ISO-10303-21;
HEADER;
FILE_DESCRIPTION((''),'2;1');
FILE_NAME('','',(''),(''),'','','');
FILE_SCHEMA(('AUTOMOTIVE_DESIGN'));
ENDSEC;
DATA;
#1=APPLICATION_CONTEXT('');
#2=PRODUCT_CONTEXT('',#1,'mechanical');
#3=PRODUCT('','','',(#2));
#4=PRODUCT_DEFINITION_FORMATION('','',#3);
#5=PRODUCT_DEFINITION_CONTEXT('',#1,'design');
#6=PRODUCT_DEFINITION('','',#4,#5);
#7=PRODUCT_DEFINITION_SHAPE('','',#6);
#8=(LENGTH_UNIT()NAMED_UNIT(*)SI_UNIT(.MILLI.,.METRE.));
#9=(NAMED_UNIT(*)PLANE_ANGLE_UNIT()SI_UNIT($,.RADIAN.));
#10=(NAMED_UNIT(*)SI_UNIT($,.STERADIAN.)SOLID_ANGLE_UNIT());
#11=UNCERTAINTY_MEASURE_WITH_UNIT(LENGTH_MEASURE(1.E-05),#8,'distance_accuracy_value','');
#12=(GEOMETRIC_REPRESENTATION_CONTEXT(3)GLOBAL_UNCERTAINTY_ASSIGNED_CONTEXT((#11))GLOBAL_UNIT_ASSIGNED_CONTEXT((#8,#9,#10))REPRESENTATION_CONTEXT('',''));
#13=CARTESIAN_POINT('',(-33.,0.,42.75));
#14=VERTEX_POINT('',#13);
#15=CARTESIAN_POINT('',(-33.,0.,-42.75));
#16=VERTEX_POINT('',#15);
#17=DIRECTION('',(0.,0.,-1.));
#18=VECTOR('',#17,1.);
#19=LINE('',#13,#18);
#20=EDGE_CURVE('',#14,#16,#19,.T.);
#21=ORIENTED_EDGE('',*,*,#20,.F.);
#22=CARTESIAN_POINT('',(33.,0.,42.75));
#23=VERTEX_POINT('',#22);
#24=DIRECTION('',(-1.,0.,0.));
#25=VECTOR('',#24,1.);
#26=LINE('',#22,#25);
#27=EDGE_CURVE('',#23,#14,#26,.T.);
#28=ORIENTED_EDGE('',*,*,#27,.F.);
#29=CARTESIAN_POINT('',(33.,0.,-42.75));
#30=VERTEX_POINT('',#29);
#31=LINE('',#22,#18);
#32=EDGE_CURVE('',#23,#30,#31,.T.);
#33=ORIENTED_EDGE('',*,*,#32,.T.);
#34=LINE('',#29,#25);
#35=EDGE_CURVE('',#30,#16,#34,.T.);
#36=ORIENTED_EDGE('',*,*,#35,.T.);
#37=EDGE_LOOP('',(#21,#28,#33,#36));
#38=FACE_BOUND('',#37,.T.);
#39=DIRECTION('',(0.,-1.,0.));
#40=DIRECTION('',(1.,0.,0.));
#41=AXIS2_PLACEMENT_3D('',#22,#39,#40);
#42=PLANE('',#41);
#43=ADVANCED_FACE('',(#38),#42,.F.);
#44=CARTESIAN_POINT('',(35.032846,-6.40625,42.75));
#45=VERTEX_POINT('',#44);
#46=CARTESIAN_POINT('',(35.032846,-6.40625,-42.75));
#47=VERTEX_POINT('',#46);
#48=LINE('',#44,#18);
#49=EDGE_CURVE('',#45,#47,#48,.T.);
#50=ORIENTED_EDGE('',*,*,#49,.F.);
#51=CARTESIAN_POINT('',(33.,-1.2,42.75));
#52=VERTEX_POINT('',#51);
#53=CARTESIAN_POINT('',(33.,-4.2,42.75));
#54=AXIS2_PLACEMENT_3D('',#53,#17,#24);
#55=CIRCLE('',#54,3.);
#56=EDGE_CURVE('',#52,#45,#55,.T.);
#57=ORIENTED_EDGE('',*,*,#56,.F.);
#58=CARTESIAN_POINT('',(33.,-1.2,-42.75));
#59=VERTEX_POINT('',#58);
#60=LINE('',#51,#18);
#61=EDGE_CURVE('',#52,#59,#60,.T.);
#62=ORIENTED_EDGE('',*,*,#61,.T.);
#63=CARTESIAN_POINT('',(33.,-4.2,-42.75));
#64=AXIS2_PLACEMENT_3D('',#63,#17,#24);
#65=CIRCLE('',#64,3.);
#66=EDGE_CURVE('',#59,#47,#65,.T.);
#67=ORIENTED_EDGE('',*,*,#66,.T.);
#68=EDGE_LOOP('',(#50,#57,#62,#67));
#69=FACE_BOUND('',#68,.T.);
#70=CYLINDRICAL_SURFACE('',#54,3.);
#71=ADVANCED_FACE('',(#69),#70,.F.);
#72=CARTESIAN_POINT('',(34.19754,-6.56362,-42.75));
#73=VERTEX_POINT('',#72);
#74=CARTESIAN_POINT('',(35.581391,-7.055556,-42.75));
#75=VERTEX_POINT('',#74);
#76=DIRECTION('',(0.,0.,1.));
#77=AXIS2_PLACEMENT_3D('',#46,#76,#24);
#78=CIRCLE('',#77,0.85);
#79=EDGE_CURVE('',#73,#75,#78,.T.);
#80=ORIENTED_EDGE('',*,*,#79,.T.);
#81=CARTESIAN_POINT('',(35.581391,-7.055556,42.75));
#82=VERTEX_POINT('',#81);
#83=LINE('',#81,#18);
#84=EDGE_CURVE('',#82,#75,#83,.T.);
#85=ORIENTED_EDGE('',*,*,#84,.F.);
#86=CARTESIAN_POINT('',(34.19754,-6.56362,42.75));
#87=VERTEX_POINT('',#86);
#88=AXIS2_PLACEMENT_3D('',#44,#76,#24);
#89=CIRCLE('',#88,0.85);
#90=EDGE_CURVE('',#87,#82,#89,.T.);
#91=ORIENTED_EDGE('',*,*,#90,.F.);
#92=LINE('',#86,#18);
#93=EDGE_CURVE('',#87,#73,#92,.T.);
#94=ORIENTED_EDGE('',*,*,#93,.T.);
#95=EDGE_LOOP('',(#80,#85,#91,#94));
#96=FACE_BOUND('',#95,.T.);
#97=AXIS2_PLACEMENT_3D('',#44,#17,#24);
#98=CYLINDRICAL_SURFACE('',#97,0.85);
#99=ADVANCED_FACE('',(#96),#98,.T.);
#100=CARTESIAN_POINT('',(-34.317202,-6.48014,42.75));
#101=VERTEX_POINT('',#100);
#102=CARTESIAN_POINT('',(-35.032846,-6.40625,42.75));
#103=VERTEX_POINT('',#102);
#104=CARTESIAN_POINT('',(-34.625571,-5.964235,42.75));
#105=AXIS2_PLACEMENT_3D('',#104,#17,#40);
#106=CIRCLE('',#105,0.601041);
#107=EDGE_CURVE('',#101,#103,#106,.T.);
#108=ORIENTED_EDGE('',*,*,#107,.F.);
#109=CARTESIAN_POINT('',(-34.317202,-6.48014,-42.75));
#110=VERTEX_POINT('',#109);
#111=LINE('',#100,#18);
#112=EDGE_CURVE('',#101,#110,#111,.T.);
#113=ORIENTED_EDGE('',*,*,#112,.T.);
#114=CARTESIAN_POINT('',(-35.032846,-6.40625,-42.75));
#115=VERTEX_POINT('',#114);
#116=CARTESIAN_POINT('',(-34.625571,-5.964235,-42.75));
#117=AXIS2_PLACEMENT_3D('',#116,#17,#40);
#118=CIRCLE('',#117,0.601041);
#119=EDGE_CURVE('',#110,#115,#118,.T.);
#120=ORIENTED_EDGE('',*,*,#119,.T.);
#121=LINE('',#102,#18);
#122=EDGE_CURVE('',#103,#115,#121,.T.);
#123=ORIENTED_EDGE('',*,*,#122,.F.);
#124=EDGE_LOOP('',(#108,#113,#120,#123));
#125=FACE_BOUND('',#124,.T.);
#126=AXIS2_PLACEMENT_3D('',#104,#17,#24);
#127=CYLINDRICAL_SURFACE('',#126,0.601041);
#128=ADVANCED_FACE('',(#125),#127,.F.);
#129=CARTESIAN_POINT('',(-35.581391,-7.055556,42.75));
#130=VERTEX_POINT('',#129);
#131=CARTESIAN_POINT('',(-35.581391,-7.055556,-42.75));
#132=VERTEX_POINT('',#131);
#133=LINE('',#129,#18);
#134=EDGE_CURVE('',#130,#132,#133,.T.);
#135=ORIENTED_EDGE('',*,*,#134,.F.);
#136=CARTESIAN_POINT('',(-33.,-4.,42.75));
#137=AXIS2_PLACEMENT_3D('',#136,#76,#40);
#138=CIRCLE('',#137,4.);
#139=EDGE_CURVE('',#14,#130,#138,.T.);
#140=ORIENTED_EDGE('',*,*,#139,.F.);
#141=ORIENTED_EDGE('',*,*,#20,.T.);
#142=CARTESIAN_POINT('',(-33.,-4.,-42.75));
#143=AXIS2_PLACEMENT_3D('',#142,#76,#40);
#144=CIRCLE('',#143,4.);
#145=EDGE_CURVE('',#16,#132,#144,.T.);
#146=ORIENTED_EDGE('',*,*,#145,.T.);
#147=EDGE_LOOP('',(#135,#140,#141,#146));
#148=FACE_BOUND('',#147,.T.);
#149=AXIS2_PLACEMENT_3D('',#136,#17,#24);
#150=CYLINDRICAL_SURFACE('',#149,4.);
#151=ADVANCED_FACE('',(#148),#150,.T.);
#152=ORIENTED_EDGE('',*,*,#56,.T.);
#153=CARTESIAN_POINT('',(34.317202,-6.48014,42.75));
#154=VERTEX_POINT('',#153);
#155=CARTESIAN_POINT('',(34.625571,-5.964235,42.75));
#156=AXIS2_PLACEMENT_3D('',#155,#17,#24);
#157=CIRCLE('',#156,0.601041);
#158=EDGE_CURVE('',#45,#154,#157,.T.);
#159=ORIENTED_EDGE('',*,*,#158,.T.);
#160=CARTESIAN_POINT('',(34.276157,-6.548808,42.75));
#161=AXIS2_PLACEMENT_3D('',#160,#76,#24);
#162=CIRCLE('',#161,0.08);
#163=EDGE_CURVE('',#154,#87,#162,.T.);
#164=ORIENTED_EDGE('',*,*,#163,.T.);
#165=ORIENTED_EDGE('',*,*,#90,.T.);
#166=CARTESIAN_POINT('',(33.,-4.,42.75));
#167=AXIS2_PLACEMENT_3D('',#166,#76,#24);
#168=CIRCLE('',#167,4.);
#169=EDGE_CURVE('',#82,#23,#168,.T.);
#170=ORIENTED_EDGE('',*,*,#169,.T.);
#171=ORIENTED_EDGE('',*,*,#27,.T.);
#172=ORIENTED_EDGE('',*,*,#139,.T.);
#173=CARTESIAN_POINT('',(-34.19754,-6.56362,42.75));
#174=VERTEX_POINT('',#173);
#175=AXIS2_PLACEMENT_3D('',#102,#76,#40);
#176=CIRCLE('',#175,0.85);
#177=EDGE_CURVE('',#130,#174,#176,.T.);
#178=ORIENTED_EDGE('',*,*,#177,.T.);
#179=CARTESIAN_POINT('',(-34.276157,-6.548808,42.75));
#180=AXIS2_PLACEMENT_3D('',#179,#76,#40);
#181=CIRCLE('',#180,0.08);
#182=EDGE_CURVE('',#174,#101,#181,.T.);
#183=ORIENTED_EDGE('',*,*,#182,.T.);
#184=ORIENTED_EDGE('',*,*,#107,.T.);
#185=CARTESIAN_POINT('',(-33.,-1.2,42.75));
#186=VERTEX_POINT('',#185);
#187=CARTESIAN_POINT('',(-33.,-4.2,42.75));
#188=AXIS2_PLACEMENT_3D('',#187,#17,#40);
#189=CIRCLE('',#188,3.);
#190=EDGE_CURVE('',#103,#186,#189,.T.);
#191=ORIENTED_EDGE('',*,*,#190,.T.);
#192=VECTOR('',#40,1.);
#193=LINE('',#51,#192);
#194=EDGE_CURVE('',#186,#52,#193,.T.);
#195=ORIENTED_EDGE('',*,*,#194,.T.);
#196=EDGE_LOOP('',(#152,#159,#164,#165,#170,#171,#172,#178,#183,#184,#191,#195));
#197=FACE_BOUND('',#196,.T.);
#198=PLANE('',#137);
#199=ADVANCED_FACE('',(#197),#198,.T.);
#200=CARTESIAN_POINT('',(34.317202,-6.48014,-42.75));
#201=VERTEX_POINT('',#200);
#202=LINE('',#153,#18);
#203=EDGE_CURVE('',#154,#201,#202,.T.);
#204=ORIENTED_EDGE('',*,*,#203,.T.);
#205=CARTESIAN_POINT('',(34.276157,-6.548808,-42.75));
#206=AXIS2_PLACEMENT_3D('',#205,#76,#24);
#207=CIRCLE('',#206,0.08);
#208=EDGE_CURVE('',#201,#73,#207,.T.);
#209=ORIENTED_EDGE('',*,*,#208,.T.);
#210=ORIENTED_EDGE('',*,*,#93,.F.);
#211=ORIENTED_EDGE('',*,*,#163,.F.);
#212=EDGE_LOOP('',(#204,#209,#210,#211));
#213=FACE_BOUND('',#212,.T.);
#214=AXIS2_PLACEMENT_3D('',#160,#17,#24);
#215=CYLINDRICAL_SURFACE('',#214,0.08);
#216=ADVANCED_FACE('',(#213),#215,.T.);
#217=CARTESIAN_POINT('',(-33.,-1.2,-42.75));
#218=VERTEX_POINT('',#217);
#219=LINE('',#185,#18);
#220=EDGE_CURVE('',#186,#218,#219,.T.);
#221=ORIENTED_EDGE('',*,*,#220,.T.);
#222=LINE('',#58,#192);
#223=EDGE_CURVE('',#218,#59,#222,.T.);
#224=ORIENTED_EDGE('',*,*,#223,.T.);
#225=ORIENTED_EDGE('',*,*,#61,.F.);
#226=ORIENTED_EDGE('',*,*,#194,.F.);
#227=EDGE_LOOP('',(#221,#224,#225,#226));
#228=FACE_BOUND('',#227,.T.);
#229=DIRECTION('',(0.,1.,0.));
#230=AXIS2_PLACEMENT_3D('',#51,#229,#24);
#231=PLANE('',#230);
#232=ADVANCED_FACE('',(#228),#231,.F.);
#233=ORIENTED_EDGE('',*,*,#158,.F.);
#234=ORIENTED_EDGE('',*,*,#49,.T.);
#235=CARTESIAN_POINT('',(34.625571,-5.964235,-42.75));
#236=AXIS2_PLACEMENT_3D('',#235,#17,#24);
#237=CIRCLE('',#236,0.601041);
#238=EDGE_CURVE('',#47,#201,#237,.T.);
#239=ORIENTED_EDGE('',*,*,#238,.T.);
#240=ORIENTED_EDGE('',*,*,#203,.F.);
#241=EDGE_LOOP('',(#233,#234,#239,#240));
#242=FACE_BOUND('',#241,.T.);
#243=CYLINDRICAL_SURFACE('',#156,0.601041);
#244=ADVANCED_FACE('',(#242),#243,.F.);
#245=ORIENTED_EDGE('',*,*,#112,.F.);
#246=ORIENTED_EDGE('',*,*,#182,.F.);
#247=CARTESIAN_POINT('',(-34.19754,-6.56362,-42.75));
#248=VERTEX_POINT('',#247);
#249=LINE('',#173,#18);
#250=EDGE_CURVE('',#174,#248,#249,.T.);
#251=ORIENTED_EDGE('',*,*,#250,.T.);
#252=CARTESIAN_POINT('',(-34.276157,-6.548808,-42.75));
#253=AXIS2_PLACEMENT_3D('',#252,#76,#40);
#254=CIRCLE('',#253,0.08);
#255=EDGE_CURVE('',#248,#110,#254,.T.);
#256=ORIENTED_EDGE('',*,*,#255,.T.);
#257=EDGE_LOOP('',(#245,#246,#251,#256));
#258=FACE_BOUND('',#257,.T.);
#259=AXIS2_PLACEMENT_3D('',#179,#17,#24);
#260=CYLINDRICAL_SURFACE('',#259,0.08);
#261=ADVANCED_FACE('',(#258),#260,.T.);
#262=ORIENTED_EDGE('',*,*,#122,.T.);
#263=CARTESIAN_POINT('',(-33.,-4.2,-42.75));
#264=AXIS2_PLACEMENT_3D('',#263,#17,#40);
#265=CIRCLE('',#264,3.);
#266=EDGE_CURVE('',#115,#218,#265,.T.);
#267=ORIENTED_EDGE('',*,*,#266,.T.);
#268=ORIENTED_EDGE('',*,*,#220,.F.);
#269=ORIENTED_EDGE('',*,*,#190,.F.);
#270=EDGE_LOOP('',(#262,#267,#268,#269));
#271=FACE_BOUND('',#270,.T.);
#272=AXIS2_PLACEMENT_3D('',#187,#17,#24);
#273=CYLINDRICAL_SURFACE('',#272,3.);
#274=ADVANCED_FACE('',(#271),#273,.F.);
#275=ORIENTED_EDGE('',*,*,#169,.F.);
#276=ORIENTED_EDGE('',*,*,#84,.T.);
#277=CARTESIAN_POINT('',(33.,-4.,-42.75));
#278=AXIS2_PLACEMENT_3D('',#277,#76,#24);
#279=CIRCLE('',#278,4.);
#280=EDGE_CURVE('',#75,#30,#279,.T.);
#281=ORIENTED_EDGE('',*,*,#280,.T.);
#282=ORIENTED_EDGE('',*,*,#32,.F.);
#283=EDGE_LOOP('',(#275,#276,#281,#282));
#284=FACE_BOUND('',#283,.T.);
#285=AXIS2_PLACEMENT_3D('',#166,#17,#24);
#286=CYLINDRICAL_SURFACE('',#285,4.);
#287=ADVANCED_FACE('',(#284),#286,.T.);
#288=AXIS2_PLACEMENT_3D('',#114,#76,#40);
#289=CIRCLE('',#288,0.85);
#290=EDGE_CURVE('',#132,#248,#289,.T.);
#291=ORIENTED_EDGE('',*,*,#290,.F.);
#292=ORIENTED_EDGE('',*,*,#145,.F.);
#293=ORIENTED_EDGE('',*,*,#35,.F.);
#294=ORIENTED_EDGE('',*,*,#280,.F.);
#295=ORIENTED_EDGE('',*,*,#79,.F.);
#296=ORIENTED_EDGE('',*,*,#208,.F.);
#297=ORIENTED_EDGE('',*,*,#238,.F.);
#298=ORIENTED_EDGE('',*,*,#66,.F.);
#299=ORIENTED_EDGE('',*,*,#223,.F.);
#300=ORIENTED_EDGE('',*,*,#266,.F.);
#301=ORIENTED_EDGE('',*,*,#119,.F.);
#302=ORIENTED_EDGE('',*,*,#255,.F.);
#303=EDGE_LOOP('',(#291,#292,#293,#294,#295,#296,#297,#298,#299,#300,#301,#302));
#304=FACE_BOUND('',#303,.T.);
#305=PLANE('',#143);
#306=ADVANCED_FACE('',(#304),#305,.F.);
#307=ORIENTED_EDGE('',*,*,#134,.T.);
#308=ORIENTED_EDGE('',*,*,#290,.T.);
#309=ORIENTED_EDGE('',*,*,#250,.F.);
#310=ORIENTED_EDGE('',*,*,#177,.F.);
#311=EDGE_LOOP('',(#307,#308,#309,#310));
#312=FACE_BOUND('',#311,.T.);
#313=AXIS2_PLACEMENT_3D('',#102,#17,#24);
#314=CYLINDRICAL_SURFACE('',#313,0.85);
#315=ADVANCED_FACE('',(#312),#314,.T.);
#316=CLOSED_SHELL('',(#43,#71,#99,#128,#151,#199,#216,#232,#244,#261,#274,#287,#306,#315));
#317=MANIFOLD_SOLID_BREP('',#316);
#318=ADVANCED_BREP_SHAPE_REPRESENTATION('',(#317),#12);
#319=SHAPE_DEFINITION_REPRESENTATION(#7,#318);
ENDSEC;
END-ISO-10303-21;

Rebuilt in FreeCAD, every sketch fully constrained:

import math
import FreeCAD as App
import Part
import Sketcher

doc = App.newDocument("Part")
body = doc.addObject("PartDesign::Body", "Body")

# Sketch on XY plane
sketch1 = doc.addObject("Sketcher::SketchObject", "Sketch")
body.addObject(sketch1)
sketch1.AttachmentSupport = (doc.XY_Plane, [""])
sketch1.MapMode = "FlatFace"
sketch1.addGeometry([
    Part.LineSegment(App.Vector(33, 0, 0), App.Vector(-33, 0, 0)),  # 0
    Part.ArcOfCircle(Part.Circle(App.Vector(-33, -4, 0), App.Vector(0, 0, 1), 4), math.radians(90), math.radians(230)),  # 1
    Part.ArcOfCircle(Part.Circle(App.Vector(-35.03, -6.41, 0), App.Vector(0, 0, 1), 0.85), math.radians(-130), math.radians(-11)),  # 2
    Part.ArcOfCircle(Part.Circle(App.Vector(-34.28, -6.55, 0), App.Vector(0, 0, 1), 0.08), math.radians(-11), math.radians(121)),  # 3
    Part.ArcOfCircle(Part.Circle(App.Vector(-34.63, -5.96, 0), App.Vector(0, 0, 1), 0.6), math.radians(-133), math.radians(-59)),  # 4
    Part.ArcOfCircle(Part.Circle(App.Vector(-33, -4.2, 0), App.Vector(0, 0, 1), 3), math.radians(90), math.radians(227)),  # 5
    Part.LineSegment(App.Vector(-33, -1.2, 0), App.Vector(33, -1.2, 0)),  # 6
    Part.ArcOfCircle(Part.Circle(App.Vector(33, -4.2, 0), App.Vector(0, 0, 1), 3), math.radians(-47), math.radians(90)),  # 7
    Part.ArcOfCircle(Part.Circle(App.Vector(34.63, -5.96, 0), App.Vector(0, 0, 1), 0.6), math.radians(-121), math.radians(-47)),  # 8
    Part.ArcOfCircle(Part.Circle(App.Vector(34.28, -6.55, 0), App.Vector(0, 0, 1), 0.08), math.radians(59), math.radians(191)),  # 9
    Part.ArcOfCircle(Part.Circle(App.Vector(35.03, -6.41, 0), App.Vector(0, 0, 1), 0.85), math.radians(-169), math.radians(-50)),  # 10
    Part.ArcOfCircle(Part.Circle(App.Vector(33, -4, 0), App.Vector(0, 0, 1), 4), math.radians(-50), math.radians(90)),  # 11
], False)
sketch1.addConstraint([
    Sketcher.Constraint("Tangent", 0, 2, 1, 1),
    Sketcher.Constraint("Tangent", 1, 2, 2, 1),
    Sketcher.Constraint("Tangent", 2, 2, 3, 1),
    Sketcher.Constraint("Tangent", 3, 2, 4, 2),
    Sketcher.Constraint("Tangent", 4, 1, 5, 2),
    Sketcher.Constraint("Tangent", 5, 1, 6, 1),
    Sketcher.Constraint("Tangent", 6, 2, 7, 2),
    Sketcher.Constraint("Tangent", 7, 1, 8, 2),
    Sketcher.Constraint("Tangent", 8, 1, 9, 1),
    Sketcher.Constraint("Tangent", 9, 2, 10, 1),
    Sketcher.Constraint("Tangent", 10, 2, 11, 1),
    Sketcher.Constraint("Tangent", 11, 2, 0, 1),
    Sketcher.Constraint("Horizontal", 0),
    Sketcher.Constraint("Horizontal", 6),
    Sketcher.Constraint("Coincident", 4, 1, 2, 3),
    Sketcher.Constraint("Coincident", 7, 1, 10, 3),
    Sketcher.Constraint("Equal", 5, 7),
    Sketcher.Constraint("Equal", 4, 8),
    Sketcher.Constraint("Equal", 3, 9),
    Sketcher.Constraint("Equal", 2, 10),
    Sketcher.Constraint("Equal", 1, 11),
    Sketcher.Constraint("Symmetric", 0, 2, 11, 2, -1, 1),
    Sketcher.Constraint("Horizontal", 4, 3, 8, 3),
    Sketcher.Constraint("Vertical", 1, 3, 5, 3),
    Sketcher.Constraint("Radius", 1, 4.0),
    Sketcher.Constraint("Radius", 5, 3.0),
    Sketcher.Constraint("DistanceX", 0, 2, 0, 1, 66.0),
    Sketcher.Constraint("Radius", 2, 0.85),
    Sketcher.Constraint("Radius", 3, 0.08),
    Sketcher.Constraint("DistanceY", 5, 3, -1, 1, 4.2),
    Sketcher.Constraint("Radius", 4, 0.601041),
])
pad1 = doc.addObject("PartDesign::Pad", "Pad")
body.addObject(pad1)
pad1.Profile = sketch1
pad1.Length = 85.5
pad1.Midplane = True

doc.recompute()
